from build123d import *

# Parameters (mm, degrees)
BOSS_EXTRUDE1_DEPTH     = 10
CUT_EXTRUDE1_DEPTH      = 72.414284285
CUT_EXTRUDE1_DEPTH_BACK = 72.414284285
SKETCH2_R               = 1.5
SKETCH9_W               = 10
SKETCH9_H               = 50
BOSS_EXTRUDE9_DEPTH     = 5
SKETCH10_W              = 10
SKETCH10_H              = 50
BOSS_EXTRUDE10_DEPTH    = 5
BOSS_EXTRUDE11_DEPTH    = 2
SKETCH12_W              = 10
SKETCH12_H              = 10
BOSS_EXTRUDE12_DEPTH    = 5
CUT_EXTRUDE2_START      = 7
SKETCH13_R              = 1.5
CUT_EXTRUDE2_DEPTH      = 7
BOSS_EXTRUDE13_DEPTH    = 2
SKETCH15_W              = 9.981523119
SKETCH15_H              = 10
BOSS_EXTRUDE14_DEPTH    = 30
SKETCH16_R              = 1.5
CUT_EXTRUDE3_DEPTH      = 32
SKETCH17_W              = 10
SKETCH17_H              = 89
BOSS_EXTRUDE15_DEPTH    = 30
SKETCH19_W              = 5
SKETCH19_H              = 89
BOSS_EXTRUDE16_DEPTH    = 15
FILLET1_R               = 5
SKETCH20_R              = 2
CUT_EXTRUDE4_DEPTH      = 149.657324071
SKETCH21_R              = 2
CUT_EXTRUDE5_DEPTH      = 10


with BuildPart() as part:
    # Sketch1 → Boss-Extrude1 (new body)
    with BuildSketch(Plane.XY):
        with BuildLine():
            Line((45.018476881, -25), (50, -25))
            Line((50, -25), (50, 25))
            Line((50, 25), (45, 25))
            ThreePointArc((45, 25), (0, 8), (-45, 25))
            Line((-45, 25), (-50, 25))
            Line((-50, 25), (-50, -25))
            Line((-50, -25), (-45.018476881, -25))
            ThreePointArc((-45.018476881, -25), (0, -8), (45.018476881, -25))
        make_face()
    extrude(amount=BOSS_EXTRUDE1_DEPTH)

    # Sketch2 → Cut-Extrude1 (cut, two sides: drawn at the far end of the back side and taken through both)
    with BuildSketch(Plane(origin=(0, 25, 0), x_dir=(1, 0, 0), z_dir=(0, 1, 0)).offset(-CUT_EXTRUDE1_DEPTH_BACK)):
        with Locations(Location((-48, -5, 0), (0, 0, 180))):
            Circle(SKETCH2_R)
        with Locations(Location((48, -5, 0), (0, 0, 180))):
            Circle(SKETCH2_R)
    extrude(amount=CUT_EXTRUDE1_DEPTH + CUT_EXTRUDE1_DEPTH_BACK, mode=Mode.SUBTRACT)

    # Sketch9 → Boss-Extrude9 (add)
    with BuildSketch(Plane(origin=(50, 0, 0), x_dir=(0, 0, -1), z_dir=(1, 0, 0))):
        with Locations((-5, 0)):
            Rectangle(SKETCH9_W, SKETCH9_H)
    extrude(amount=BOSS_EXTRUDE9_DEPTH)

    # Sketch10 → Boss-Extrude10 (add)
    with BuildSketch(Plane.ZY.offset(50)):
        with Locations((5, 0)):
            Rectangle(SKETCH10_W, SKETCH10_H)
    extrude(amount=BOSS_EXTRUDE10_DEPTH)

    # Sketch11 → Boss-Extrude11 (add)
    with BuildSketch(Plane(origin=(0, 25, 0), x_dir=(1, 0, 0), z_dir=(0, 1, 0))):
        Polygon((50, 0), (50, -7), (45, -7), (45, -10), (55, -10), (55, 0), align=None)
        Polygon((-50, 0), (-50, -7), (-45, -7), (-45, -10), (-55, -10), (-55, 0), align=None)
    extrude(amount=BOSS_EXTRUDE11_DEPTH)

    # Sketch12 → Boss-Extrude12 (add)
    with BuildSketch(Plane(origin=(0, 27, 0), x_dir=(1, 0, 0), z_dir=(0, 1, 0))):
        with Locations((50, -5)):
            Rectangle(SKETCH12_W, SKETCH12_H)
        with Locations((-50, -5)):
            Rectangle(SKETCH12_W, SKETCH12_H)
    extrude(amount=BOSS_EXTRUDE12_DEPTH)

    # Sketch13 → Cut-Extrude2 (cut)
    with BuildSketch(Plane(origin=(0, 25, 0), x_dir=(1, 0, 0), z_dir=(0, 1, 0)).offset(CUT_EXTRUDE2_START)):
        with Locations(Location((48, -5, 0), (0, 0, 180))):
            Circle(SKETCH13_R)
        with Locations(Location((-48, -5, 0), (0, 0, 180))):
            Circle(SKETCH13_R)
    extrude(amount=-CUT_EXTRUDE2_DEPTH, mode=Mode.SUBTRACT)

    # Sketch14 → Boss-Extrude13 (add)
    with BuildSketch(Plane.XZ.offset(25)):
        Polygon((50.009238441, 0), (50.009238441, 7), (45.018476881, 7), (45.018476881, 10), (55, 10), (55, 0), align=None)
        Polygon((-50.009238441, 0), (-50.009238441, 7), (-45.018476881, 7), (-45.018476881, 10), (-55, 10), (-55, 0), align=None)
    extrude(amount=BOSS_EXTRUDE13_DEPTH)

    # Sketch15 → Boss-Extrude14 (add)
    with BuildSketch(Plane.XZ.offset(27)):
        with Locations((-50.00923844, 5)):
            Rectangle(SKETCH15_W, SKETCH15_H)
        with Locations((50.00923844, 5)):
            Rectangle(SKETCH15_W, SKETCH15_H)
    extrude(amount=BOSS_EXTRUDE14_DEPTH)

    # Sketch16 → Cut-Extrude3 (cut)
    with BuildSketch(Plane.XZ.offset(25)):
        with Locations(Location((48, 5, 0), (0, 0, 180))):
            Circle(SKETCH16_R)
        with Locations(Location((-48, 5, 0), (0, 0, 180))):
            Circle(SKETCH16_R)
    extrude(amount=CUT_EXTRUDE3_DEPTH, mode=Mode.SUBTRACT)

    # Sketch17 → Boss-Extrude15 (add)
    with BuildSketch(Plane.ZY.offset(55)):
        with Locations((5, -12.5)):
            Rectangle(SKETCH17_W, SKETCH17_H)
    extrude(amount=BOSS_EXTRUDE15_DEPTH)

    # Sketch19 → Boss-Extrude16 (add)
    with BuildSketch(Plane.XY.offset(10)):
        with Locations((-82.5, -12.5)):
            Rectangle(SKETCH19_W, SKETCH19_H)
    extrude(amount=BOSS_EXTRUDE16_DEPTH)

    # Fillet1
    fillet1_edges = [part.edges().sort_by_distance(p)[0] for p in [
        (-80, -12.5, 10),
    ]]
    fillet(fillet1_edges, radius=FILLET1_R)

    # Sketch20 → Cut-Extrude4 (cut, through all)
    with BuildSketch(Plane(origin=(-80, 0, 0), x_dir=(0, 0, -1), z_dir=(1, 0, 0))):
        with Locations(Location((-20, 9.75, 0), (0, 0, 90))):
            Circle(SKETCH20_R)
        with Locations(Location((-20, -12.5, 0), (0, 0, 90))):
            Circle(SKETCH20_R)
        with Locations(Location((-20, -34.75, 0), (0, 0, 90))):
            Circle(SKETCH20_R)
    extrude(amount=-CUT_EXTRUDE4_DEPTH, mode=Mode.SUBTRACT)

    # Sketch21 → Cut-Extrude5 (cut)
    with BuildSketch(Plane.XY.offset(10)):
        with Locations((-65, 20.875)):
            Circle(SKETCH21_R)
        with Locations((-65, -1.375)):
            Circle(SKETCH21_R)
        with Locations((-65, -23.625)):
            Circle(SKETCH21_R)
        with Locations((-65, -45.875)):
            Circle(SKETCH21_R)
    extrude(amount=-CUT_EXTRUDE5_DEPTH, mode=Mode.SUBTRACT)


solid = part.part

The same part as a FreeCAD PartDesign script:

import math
import FreeCAD as App
import Part
import Sketcher
from FreeCAD import Vector


def edges_at(feature, points):
    """Names of the edges that pass closest to the given points."""
    edges = feature.Shape.Edges
    near = lambda p: min(range(len(edges)), key=lambda i: edges[i].distToShape(Part.Vertex(*p))[0])
    return sorted({f"Edge{near(p) + 1}" for p in points})


def add_polygon(sketch, points):
    """Adds a closed chain of lines whose ends are joined by coincident constraints."""
    first, n = sketch.GeometryCount, len(points)
    for a, b in zip(points, points[1:] + points[:1]):
        sketch.addGeometry(Part.LineSegment(App.Vector(*a, 0), App.Vector(*b, 0)), False)
    for i in range(n):
        sketch.addConstraint(Sketcher.Constraint("Coincident", first + i, 2, first + (i + 1) % n, 1))

doc = App.newDocument("Part")
body = doc.addObject("PartDesign::Body", "Body")

# Sketch on XY plane
sketch1 = body.newObject("Sketcher::SketchObject", "Sketch")
sketch1.AttachmentSupport = (doc.getObject("XY_Plane"), [""])
sketch1.MapMode = "FlatFace"
sketch1.addGeometry(Part.LineSegment(Vector(45.018477, -25, 0), Vector(50, -25, 0)), False)
sketch1.addGeometry(Part.LineSegment(Vector(50, -25, 0), Vector(50, 25, 0)), False)
sketch1.addGeometry(Part.LineSegment(Vector(50, 25, 0), Vector(45, 25, 0)), False)
sketch1.addGeometry(Part.ArcOfCircle(Part.Circle(Vector(0, 76.058824, 0), Vector(0, 0, 1), 68.058824), math.radians(-131.390901), math.radians(-48.609099)), False)
sketch1.addGeometry(Part.LineSegment(Vector(-45, 25, 0), Vector(-50, 25, 0)), False)
sketch1.addGeometry(Part.LineSegment(Vector(-50, 25, 0), Vector(-50, -25, 0)), False)
sketch1.addGeometry(Part.LineSegment(Vector(-50, -25, 0), Vector(-45.018477, -25, 0)), False)
sketch1.addGeometry(Part.ArcOfCircle(Part.Circle(Vector(0, -76.107743, 0), Vector(0, 0, 1), 68.107743), math.radians(48.624648), math.radians(131.375352)), False)
sketch1.addConstraint(Sketcher.Constraint("Coincident", 0, 2, 1, 1))
sketch1.addConstraint(Sketcher.Constraint("Coincident", 1, 2, 2, 1))
sketch1.addConstraint(Sketcher.Constraint("Coincident", 2, 2, 3, 2))
sketch1.addConstraint(Sketcher.Constraint("Coincident", 3, 1, 4, 1))
sketch1.addConstraint(Sketcher.Constraint("Coincident", 4, 2, 5, 1))
sketch1.addConstraint(Sketcher.Constraint("Coincident", 5, 2, 6, 1))
sketch1.addConstraint(Sketcher.Constraint("Coincident", 6, 2, 7, 2))
sketch1.addConstraint(Sketcher.Constraint("Coincident", 7, 1, 0, 1))
sketch1.addConstraint(Sketcher.Constraint("Horizontal", 0))
sketch1.addConstraint(Sketcher.Constraint("Vertical", 1))
sketch1.addConstraint(Sketcher.Constraint("Horizontal", 2))
sketch1.addConstraint(Sketcher.Constraint("Horizontal", 4))
sketch1.addConstraint(Sketcher.Constraint("Vertical", 5))
sketch1.addConstraint(Sketcher.Constraint("Horizontal", 6))
sketch1.addConstraint(Sketcher.Constraint("Symmetric", 0, 2, 4, 2, -1, 1))
sketch1.addConstraint(Sketcher.Constraint("Symmetric", 2, 2, 3, 1, -2))
sketch1.addConstraint(Sketcher.Constraint("Symmetric", 6, 2, 7, 1, -2))
sketch1.addConstraint(Sketcher.Constraint("DistanceX", 2, 2, 2, 1, 5.0))
sketch1.addConstraint(Sketcher.Constraint("DistanceY", 1, 1, 1, 2, 50.0))
sketch1.addConstraint(Sketcher.Constraint("DistanceX", -1, 1, 0, 2, 50.0))
sketch1.addConstraint(Sketcher.Constraint("Radius", 3, 68.058824))
sketch1.addConstraint(Sketcher.Constraint("Radius", 7, 68.107743))
sketch1.addConstraint(Sketcher.Constraint("DistanceX", 0, 1, 0, 2, 4.981523))
pad1 = body.newObject("PartDesign::Pad", "Pad")
pad1.Profile = sketch1
pad1.Length = 10

# Sketch on XZ plane
sketch2 = body.newObject("Sketcher::SketchObject", "Sketch001")
sketch2.AttachmentSupport = (doc.getObject("XZ_Plane"), [""])
sketch2.MapMode = "FlatFace"
sketch2.AttachmentOffset = App.Placement(Vector(0, 0, -25), App.Rotation())
sketch2.addGeometry(Part.Circle(Vector(-48, 5, 0), Vector(0, 0, 1), 1.5), False)
sketch2.addGeometry(Part.Circle(Vector(48, 5, 0), Vector(0, 0, 1), 1.5), False)
sketch2.addConstraint(Sketcher.Constraint("Equal", 0, 1))
sketch2.addConstraint(Sketcher.Constraint("Symmetric", 0, 3, 1, 3, -2))
sketch2.addConstraint(Sketcher.Constraint("Diameter", 0, 3.0))
sketch2.addConstraint(Sketcher.Constraint("DistanceX", 0, 3, -1, 1, 48.0))
sketch2.addConstraint(Sketcher.Constraint("DistanceY", -1, 1, 0, 3, 5.0))
pocket1 = body.newObject("PartDesign::Pocket", "Pocket")
pocket1.Profile = sketch2
pocket1.Type = "ThroughAll"
pocket1.Midplane = True

# Sketch on YZ plane
sketch3 = body.newObject("Sketcher::SketchObject", "Sketch002")
sketch3.AttachmentSupport = (doc.getObject("YZ_Plane"), [""])
sketch3.MapMode = "FlatFace"
sketch3.AttachmentOffset = App.Placement(Vector(0, 0, 50), App.Rotation())
add_polygon(sketch3, [(25, 10), (-25, 10), (-25, 0), (25, 0)])  # lines 0-3
sketch3.addConstraint(Sketcher.Constraint("Horizontal", 0))
sketch3.addConstraint(Sketcher.Constraint("Vertical", 1))
sketch3.addConstraint(Sketcher.Constraint("Horizontal", 2))
sketch3.addConstraint(Sketcher.Constraint("Vertical", 3))
sketch3.addConstraint(Sketcher.Constraint("Symmetric", 1, 2, 2, 2, -1, 1))
sketch3.addConstraint(Sketcher.Constraint("DistanceX", 0, 2, 0, 1, 50.0))
sketch3.addConstraint(Sketcher.Constraint("DistanceY", 1, 2, 1, 1, 10.0))
pad2 = body.newObject("PartDesign::Pad", "Pad001")
pad2.Profile = sketch3
pad2.Length = 5

# Sketch on YZ plane
sketch4 = body.newObject("Sketcher::SketchObject", "Sketch003")
sketch4.AttachmentSupport = (doc.getObject("YZ_Plane"), [""])
sketch4.MapMode = "FlatFace"
sketch4.AttachmentOffset = App.Placement(Vector(0, 0, -50), App.Rotation())
add_polygon(sketch4, [(25, 0), (-25, 0), (-25, 10), (25, 10)])  # lines 0-3
sketch4.addConstraint(Sketcher.Constraint("Horizontal", 0))
sketch4.addConstraint(Sketcher.Constraint("Vertical", 1))
sketch4.addConstraint(Sketcher.Constraint("Horizontal", 2))
sketch4.addConstraint(Sketcher.Constraint("Vertical", 3))
sketch4.addConstraint(Sketcher.Constraint("Symmetric", 0, 2, 3, 2, -1, 1))
sketch4.addConstraint(Sketcher.Constraint("DistanceX", 0, 2, 0, 1, 50.0))
sketch4.addConstraint(Sketcher.Constraint("DistanceY", 1, 1, 1, 2, 10.0))
pad3 = body.newObject("PartDesign::Pad", "Pad002")
pad3.Profile = sketch4
pad3.Length = 5
pad3.Reversed = True

# Sketch on XZ plane
sketch5 = body.newObject("Sketcher::SketchObject", "Sketch004")
sketch5.AttachmentSupport = (doc.getObject("XZ_Plane"), [""])
sketch5.MapMode = "FlatFace"
sketch5.AttachmentOffset = App.Placement(Vector(0, 0, -25), App.Rotation())
add_polygon(sketch5, [(50, 0), (50, 7), (45, 7), (45, 10), (55, 10), (55, 0)])  # lines 0-5
add_polygon(sketch5, [(-50, 7), (-50, 0), (-55, 0), (-55, 10), (-45, 10), (-45, 7)])  # lines 6-11
sketch5.addConstraint(Sketcher.Constraint("Vertical", 0))
sketch5.addConstraint(Sketcher.Constraint("Horizontal", 1))
sketch5.addConstraint(Sketcher.Constraint("Vertical", 2))
sketch5.addConstraint(Sketcher.Constraint("Horizontal", 3))
sketch5.addConstraint(Sketcher.Constraint("Vertical", 4))
sketch5.addConstraint(Sketcher.Constraint("Horizontal", 5))
sketch5.addConstraint(Sketcher.Constraint("Vertical", 6))
sketch5.addConstraint(Sketcher.Constraint("Horizontal", 7))
sketch5.addConstraint(Sketcher.Constraint("Vertical", 8))
sketch5.addConstraint(Sketcher.Constraint("Horizontal", 9))
sketch5.addConstraint(Sketcher.Constraint("Vertical", 10))
sketch5.addConstraint(Sketcher.Constraint("Horizontal", 11))
sketch5.addConstraint(Sketcher.Constraint("Symmetric", 5, 2, 6, 2, -1, 1))
sketch5.addConstraint(Sketcher.Constraint("Symmetric", 4, 2, 7, 2, -2))
sketch5.addConstraint(Sketcher.Constraint("Symmetric", 2, 2, 9, 2, -2))
sketch5.addConstraint(Sketcher.Constraint("Horizontal", 1, 2, 10, 2))
sketch5.addConstraint(Sketcher.Constraint("Equal", 1, 5))
sketch5.addConstraint(Sketcher.Constraint("Equal", 9, 4))
sketch5.addConstraint(Sketcher.Constraint("DistanceX", 1, 2, 1, 1, 5.0))
sketch5.addConstraint(Sketcher.Constraint("DistanceY", 0, 1, 0, 2, 7.0))
sketch5.addConstraint(Sketcher.Constraint("DistanceX", -1, 1, 0, 2, 50.0))
pad4 = body.newObject("PartDesign::Pad", "Pad003")
pad4.Profile = sketch5
pad4.Length = 2
pad4.Reversed = True

# Sketch on XZ plane
sketch6 = body.newObject("Sketcher::SketchObject", "Sketch005")
sketch6.AttachmentSupport = (doc.getObject("XZ_Plane"), [""])
sketch6.MapMode = "FlatFace"
sketch6.AttachmentOffset = App.Placement(Vector(0, 0, -27), App.Rotation())
add_polygon(sketch6, [(45, 0), (45, 10), (55, 10), (55, 0)])  # lines 0-3
add_polygon(sketch6, [(-55, 0), (-55, 10), (-45, 10), (-45, 0)])  # lines 4-7
sketch6.addConstraint(Sketcher.Constraint("Vertical", 0))
sketch6.addConstraint(Sketcher.Constraint("Horizontal", 1))
sketch6.addConstraint(Sketcher.Constraint("Vertical", 2))
sketch6.addConstraint(Sketcher.Constraint("Horizontal", 3))
sketch6.addConstraint(Sketcher.Constraint("Vertical", 4))
sketch6.addConstraint(Sketcher.Constraint("Horizontal", 5))
sketch6.addConstraint(Sketcher.Constraint("Vertical", 6))
sketch6.addConstraint(Sketcher.Constraint("Horizontal", 7))
sketch6.addConstraint(Sketcher.Constraint("Symmetric", 3, 2, 6, 2, -1, 1))
sketch6.addConstraint(Sketcher.Constraint("Symmetric", 1, 2, 4, 2, -2))
sketch6.addConstraint(Sketcher.Constraint("PointOnObject", 2, 2, -1))
sketch6.addConstraint(Sketcher.Constraint("Equal", 7, 0))
sketch6.addConstraint(Sketcher.Constraint("DistanceX", 1, 1, 1, 2, 10.0))
sketch6.addConstraint(Sketcher.Constraint("DistanceX", -1, 1, 0, 2, 45.0))
pad5 = body.newObject("PartDesign::Pad", "Pad004")
pad5.Profile = sketch6
pad5.Length = 5
pad5.Reversed = True

# Sketch on XZ plane
sketch7 = body.newObject("Sketcher::SketchObject", "Sketch006")
sketch7.AttachmentSupport = (doc.getObject("XZ_Plane"), [""])
sketch7.MapMode = "FlatFace"
sketch7.AttachmentOffset = App.Placement(Vector(0, 0, -32), App.Rotation())
sketch7.addGeometry(Part.Circle(Vector(48, 5, 0), Vector(0, 0, 1), 1.5), False)
sketch7.addGeometry(Part.Circle(Vector(-48, 5, 0), Vector(0, 0, 1), 1.5), False)
sketch7.addConstraint(Sketcher.Constraint("Equal", 0, 1))
sketch7.addConstraint(Sketcher.Constraint("Symmetric", 0, 3, 1, 3, -2))
sketch7.addConstraint(Sketcher.Constraint("Diameter", 0, 3.0))
sketch7.addConstraint(Sketcher.Constraint("DistanceX", -1, 1, 0, 3, 48.0))
sketch7.addConstraint(Sketcher.Constraint("DistanceY", -1, 1, 0, 3, 5.0))
pocket2 = body.newObject("PartDesign::Pocket", "Pocket001")
pocket2.Profile = sketch7
pocket2.Length = 7
pocket2.Reversed = True

# Sketch on XZ plane
sketch8 = body.newObject("Sketcher::SketchObject", "Sketch007")
sketch8.AttachmentSupport = (doc.getObject("XZ_Plane"), [""])
sketch8.MapMode = "FlatFace"
sketch8.AttachmentOffset = App.Placement(Vector(0, 0, 25), App.Rotation())
add_polygon(sketch8, [(50.009238, 7), (50.009238, 0), (55, 0), (55, 10), (45.018477, 10), (45.018477, 7)])  # lines 0-5
add_polygon(sketch8, [(-50.009238, 0), (-50.009238, 7), (-45.018477, 7), (-45.018477, 10), (-55, 10), (-55, 0)])  # lines 6-11
sketch8.addConstraint(Sketcher.Constraint("Vertical", 0))
sketch8.addConstraint(Sketcher.Constraint("Horizontal", 1))
sketch8.addConstraint(Sketcher.Constraint("Vertical", 2))
sketch8.addConstraint(Sketcher.Constraint("Horizontal", 3))
sketch8.addConstraint(Sketcher.Constraint("Vertical", 4))
sketch8.addConstraint(Sketcher.Constraint("Horizontal", 5))
sketch8.addConstraint(Sketcher.Constraint("Vertical", 6))
sketch8.addConstraint(Sketcher.Constraint("Horizontal", 7))
sketch8.addConstraint(Sketcher.Constraint("Vertical", 8))
sketch8.addConstraint(Sketcher.Constraint("Horizontal", 9))
sketch8.addConstraint(Sketcher.Constraint("Vertical", 10))
sketch8.addConstraint(Sketcher.Constraint("Horizontal", 11))
sketch8.addConstraint(Sketcher.Constraint("Symmetric", 1, 2, 10, 2, -1, 1))
sketch8.addConstraint(Sketcher.Constraint("Symmetric", 5, 2, 6, 2, -2))
sketch8.addConstraint(Sketcher.Constraint("Symmetric", 3, 2, 8, 2, -2))
sketch8.addConstraint(Sketcher.Constraint("PointOnObject", 0, 2, -1))
sketch8.addConstraint(Sketcher.Constraint("Equal", 1, 5))
sketch8.addConstraint(Sketcher.Constraint("DistanceY", 0, 2, 0, 1, 7.0))
sketch8.addConstraint(Sketcher.Constraint("DistanceY", 2, 1, 2, 2, 10.0))
sketch8.addConstraint(Sketcher.Constraint("DistanceX", -1, 1, 1, 2, 55.0))
sketch8.addConstraint(Sketcher.Constraint("DistanceX", 1, 1, 1, 2, 4.990762))
pad6 = body.newObject("PartDesign::Pad", "Pad005")
pad6.Profile = sketch8
pad6.Length = 2

# Sketch on XZ plane
sketch9 = body.newObject("Sketcher::SketchObject", "Sketch008")
sketch9.AttachmentSupport = (doc.getObject("XZ_Plane"), [""])
sketch9.MapMode = "FlatFace"
sketch9.AttachmentOffset = App.Placement(Vector(0, 0, 27), App.Rotation())
add_polygon(sketch9, [(-55, 10), (-55, 0), (-45.018477, 0), (-45.018477, 10)])  # lines 0-3
add_polygon(sketch9, [(45.018477, 10), (45.018477, 0), (55, 0), (55, 10)])  # lines 4-7
sketch9.addConstraint(Sketcher.Constraint("Vertical", 0))
sketch9.addConstraint(Sketcher.Constraint("Horizontal", 1))
sketch9.addConstraint(Sketcher.Constraint("Vertical", 2))
sketch9.addConstraint(Sketcher.Constraint("Horizontal", 3))
sketch9.addConstraint(Sketcher.Constraint("Vertical", 4))
sketch9.addConstraint(Sketcher.Constraint("Horizontal", 5))
sketch9.addConstraint(Sketcher.Constraint("Vertical", 6))
sketch9.addConstraint(Sketcher.Constraint("Horizontal", 7))
sketch9.addConstraint(Sketcher.Constraint("Symmetric", 1, 2, 4, 2, -1, 1))
sketch9.addConstraint(Sketcher.Constraint("Symmetric", 0, 2, 5, 2, -2))
sketch9.addConstraint(Sketcher.Constraint("Horizontal", 3, 2, 6, 2))
sketch9.addConstraint(Sketcher.Constraint("DistanceY", 0, 2, 0, 1, 10.0))
sketch9.addConstraint(Sketcher.Constraint("DistanceX", 0, 2, -1, 1, 55.0))
sketch9.addConstraint(Sketcher.Constraint("DistanceX", 1, 1, 1, 2, 9.981523))
pad7 = body.newObject("PartDesign::Pad", "Pad006")
pad7.Profile = sketch9
pad7.Length = 30

# Sketch on XZ plane
sketch10 = body.newObject("Sketcher::SketchObject", "Sketch009")
sketch10.AttachmentSupport = (doc.getObject("XZ_Plane"), [""])
sketch10.MapMode = "FlatFace"
sketch10.AttachmentOffset = App.Placement(Vector(0, 0, 25), App.Rotation())
sketch10.addGeometry(Part.Circle(Vector(48, 5, 0), Vector(0, 0, 1), 1.5), False)
sketch10.addGeometry(Part.Circle(Vector(-48, 5, 0), Vector(0, 0, 1), 1.5), False)
sketch10.addConstraint(Sketcher.Constraint("Equal", 0, 1))
sketch10.addConstraint(Sketcher.Constraint("Symmetric", 0, 3, 1, 3, -2))
sketch10.addConstraint(Sketcher.Constraint("Diameter", 0, 3.0))
sketch10.addConstraint(Sketcher.Constraint("DistanceX", -1, 1, 0, 3, 48.0))
sketch10.addConstraint(Sketcher.Constraint("DistanceY", -1, 1, 0, 3, 5.0))
pocket3 = body.newObject("PartDesign::Pocket", "Pocket002")
pocket3.Profile = sketch10
pocket3.Length = 32
pocket3.Reversed = True

# Sketch on YZ plane
sketch11 = body.newObject("Sketcher::SketchObject", "Sketch010")
sketch11.AttachmentSupport = (doc.getObject("YZ_Plane"), [""])
sketch11.MapMode = "FlatFace"
sketch11.AttachmentOffset = App.Placement(Vector(0, 0, -55), App.Rotation())
add_polygon(sketch11, [(32, 0), (-57, 0), (-57, 10), (32, 10)])  # lines 0-3
sketch11.addConstraint(Sketcher.Constraint("Horizontal", 0))
sketch11.addConstraint(Sketcher.Constraint("Vertical", 1))
sketch11.addConstraint(Sketcher.Constraint("Horizontal", 2))
sketch11.addConstraint(Sketcher.Constraint("Vertical", 3))
sketch11.addConstraint(Sketcher.Constraint("PointOnObject", 0, 2, -1))
sketch11.addConstraint(Sketcher.Constraint("DistanceX", 0, 2, 0, 1, 89.0))
sketch11.addConstraint(Sketcher.Constraint("DistanceY", 1, 1, 1, 2, 10.0))
sketch11.addConstraint(Sketcher.Constraint("DistanceX", 0, 2, -1, 1, 57.0))
pad8 = body.newObject("PartDesign::Pad", "Pad007")
pad8.Profile = sketch11
pad8.Length = 30
pad8.Reversed = True

# Sketch on XY plane
sketch12 = body.newObject("Sketcher::SketchObject", "Sketch011")
sketch12.AttachmentSupport = (doc.getObject("XY_Plane"), [""])
sketch12.MapMode = "FlatFace"
sketch12.AttachmentOffset = App.Placement(Vector(0, 0, 10), App.Rotation())
add_polygon(sketch12, [(-85, 32), (-85, -57), (-80, -57), (-80, 32)])  # lines 0-3
sketch12.addConstraint(Sketcher.Constraint("Vertical", 0))
sketch12.addConstraint(Sketcher.Constraint("Horizontal", 1))
sketch12.addConstraint(Sketcher.Constraint("Vertical", 2))
sketch12.addConstraint(Sketcher.Constraint("Horizontal", 3))
sketch12.addConstraint(Sketcher.Constraint("DistanceX", 1, 1, 1, 2, 5.0))
sketch12.addConstraint(Sketcher.Constraint("DistanceY", 0, 2, 0, 1, 89.0))
sketch12.addConstraint(Sketcher.Constraint("DistanceX", 0, 2, -1, 1, 85.0))
sketch12.addConstraint(Sketcher.Constraint("DistanceY", 0, 2, -1, 1, 57.0))
pad9 = body.newObject("PartDesign::Pad", "Pad008")
pad9.Profile = sketch12
pad9.Length = 15
doc.recompute()

fillet = body.newObject("PartDesign::Fillet", "Fillet")
fillet.Base = (pad9, edges_at(pad9, [(-80, -12.5, 10)]))
fillet.Radius = 5

# Sketch on YZ plane
sketch13 = body.newObject("Sketcher::SketchObject", "Sketch012")
sketch13.AttachmentSupport = (doc.getObject("YZ_Plane"), [""])
sketch13.MapMode = "FlatFace"
sketch13.AttachmentOffset = App.Placement(Vector(0, 0, -80), App.Rotation())
sketch13.addGeometry(Part.Circle(Vector(9.75, 20, 0), Vector(0, 0, 1), 2), False)
sketch13.addGeometry(Part.Circle(Vector(-12.5, 20, 0), Vector(0, 0, 1), 2), False)
sketch13.addGeometry(Part.Circle(Vector(-34.75, 20, 0), Vector(0, 0, 1), 2), False)
sketch13.addConstraint(Sketcher.Constraint("Equal", 0, 1))
sketch13.addConstraint(Sketcher.Constraint("Equal", 1, 2))
sketch13.addConstraint(Sketcher.Constraint("Horizontal", 0, 3, 1, 3))
sketch13.addConstraint(Sketcher.Constraint("Horizontal", 1, 3, 2, 3))
sketch13.addConstraint(Sketcher.Constraint("Diameter", 0, 4.0))
sketch13.addConstraint(Sketcher.Constraint("DistanceY", -1, 1, 0, 3, 20.0))
sketch13.addConstraint(Sketcher.Constraint("DistanceX", 1, 3, -1, 1, 12.5))
sketch13.addConstraint(Sketcher.Constraint("DistanceX", 2, 3, 0, 3, 44.5))
sketch13.addConstraint(Sketcher.Constraint("DistanceX", -1, 1, 0, 3, 9.75))
pocket4 = body.newObject("PartDesign::Pocket", "Pocket003")
pocket4.Profile = sketch13
pocket4.Type = "ThroughAll"

# Sketch on XY plane
sketch14 = body.newObject("Sketcher::SketchObject", "Sketch013")
sketch14.AttachmentSupport = (doc.getObject("XY_Plane"), [""])
sketch14.MapMode = "FlatFace"
sketch14.AttachmentOffset = App.Placement(Vector(0, 0, 10), App.Rotation())
sketch14.addGeometry(Part.Circle(Vector(-65, 20.875, 0), Vector(0, 0, 1), 2), False)
sketch14.addGeometry(Part.Circle(Vector(-65, -1.375, 0), Vector(0, 0, 1), 2), False)
sketch14.addGeometry(Part.Circle(Vector(-65, -23.625, 0), Vector(0, 0, 1), 2), False)
sketch14.addGeometry(Part.Circle(Vector(-65, -45.875, 0), Vector(0, 0, 1), 2), False)
sketch14.addConstraint(Sketcher.Constraint("Equal", 0, 1))
sketch14.addConstraint(Sketcher.Constraint("Equal", 1, 2))
sketch14.addConstraint(Sketcher.Constraint("Equal", 2, 3))
sketch14.addConstraint(Sketcher.Constraint("Vertical", 0, 3, 1, 3))
sketch14.addConstraint(Sketcher.Constraint("Vertical", 1, 3, 2, 3))
sketch14.addConstraint(Sketcher.Constraint("Vertical", 2, 3, 3, 3))
sketch14.addConstraint(Sketcher.Constraint("Diameter", 0, 4.0))
sketch14.addConstraint(Sketcher.Constraint("DistanceX", 0, 3, -1, 1, 65.0))
sketch14.addConstraint(Sketcher.Constraint("DistanceY", 2, 3, 0, 3, 44.5))
sketch14.addConstraint(Sketcher.Constraint("DistanceY", 3, 3, 1, 3, 44.5))
sketch14.addConstraint(Sketcher.Constraint("DistanceY", 1, 3, 0, 3, 22.25))
sketch14.addConstraint(Sketcher.Constraint("DistanceY", -1, 1, 0, 3, 20.875))
pocket5 = body.newObject("PartDesign::Pocket", "Pocket004")
pocket5.Profile = sketch14
pocket5.Length = 10

doc.recompute()
